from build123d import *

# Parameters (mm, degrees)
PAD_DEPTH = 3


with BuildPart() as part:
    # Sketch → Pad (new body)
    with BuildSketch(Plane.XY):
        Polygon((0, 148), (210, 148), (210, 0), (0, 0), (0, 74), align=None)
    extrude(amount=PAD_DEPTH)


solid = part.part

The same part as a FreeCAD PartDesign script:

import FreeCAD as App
import Part
import Sketcher
from FreeCAD import Vector
Q = App.Units.Quantity


def add_polygon(sketch, points):
    """Adds a closed chain of lines whose ends are joined by coincident constraints."""
    first, n = sketch.GeometryCount, len(points)
    for a, b in zip(points, points[1:] + points[:1]):
        sketch.addGeometry(Part.LineSegment(App.Vector(*a, 0), App.Vector(*b, 0)), False)
    for i in range(n):
        sketch.addConstraint(Sketcher.Constraint("Coincident", first + i, 2, first + (i + 1) % n, 1))

doc = App.newDocument("Part")
params = doc.addObject("Spreadsheet::Sheet", "Params")
for row, (alias, value) in enumerate([
    ("sketch1_width", "210 mm"),
    ("sketch1_height", "148 mm"),
    ("pad1_length", "3 mm"),
], start=1):
    params.set(f"A{row}", alias)
    params.set(f"B{row}", "=" + value)
    params.setAlias(f"B{row}", alias)

body = doc.addObject("PartDesign::Body", "Body")

sketch1 = body.newObject("Sketcher::SketchObject", "Sketch")
sketch1.AttachmentSupport = (doc.getObject("XY_Plane"), [""])
sketch1.MapMode = "FlatFace"
add_polygon(sketch1, [(210, 148), (0, 148), (0, 0), (210, 0)])
sketch1.addConstraint([
    Sketcher.Constraint("Horizontal", 0),
    Sketcher.Constraint("Vertical", 1),
    Sketcher.Constraint("Horizontal", 2),
    Sketcher.Constraint("Vertical", 3),
    Sketcher.Constraint("Coincident", 1, 2, -1, 1),
    Sketcher.Constraint("DistanceX", 0, 2, 0, 1, Q("210 mm")),
    Sketcher.Constraint("DistanceY", 1, 2, 1, 1, Q("148 mm")),
])
sketch1.setExpression("Constraints[9]", "Params.sketch1_width")
sketch1.setExpression("Constraints[10]", "Params.sketch1_height")
pad1 = body.newObject("PartDesign::Pad", "Pad")
pad1.Profile = sketch1
pad1.setExpression("Length", "Params.pad1_length")

doc.recompute()
